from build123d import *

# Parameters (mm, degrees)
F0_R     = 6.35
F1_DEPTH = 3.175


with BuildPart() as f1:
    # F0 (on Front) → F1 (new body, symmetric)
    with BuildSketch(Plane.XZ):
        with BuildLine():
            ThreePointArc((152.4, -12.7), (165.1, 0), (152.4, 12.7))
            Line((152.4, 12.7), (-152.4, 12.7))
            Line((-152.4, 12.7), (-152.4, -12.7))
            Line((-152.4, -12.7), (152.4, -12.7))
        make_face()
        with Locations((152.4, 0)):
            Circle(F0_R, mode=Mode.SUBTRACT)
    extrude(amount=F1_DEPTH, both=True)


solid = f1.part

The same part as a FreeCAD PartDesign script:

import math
import FreeCAD as App
import Part
import Sketcher
from FreeCAD import Vector
Q = App.Units.Quantity

doc = App.newDocument("Part")
body = doc.addObject("PartDesign::Body", "Body")

# Sketch on XZ plane
sketch1 = doc.addObject("Sketcher::SketchObject", "Sketch")
body.addObject(sketch1)
sketch1.AttachmentSupport = (doc.XZ_Plane, [""])
sketch1.MapMode = "FlatFace"
sketch1.addGeometry(Part.ArcOfCircle(Part.Circle(Vector(152, 0, 0), Vector(0, 0, 1), 13), math.radians(-90), math.radians(90)), False)
sketch1.addGeometry(Part.LineSegment(Vector(152, 13, 0), Vector(-152, 13, 0)), False)
sketch1.addGeometry(Part.LineSegment(Vector(-152, 13, 0), Vector(-152, -13, 0)), False)
sketch1.addGeometry(Part.LineSegment(Vector(-152, -13, 0), Vector(152, -13, 0)), False)
sketch1.addGeometry(Part.Circle(Vector(152, 0, 0), Vector(0, 0, 1), 6), False)
sketch1.addConstraint(Sketcher.Constraint("Tangent", 0, 2, 1, 1))
sketch1.addConstraint(Sketcher.Constraint("Coincident", 1, 2, 2, 1))
sketch1.addConstraint(Sketcher.Constraint("Coincident", 2, 2, 3, 1))
sketch1.addConstraint(Sketcher.Constraint("Tangent", 3, 2, 0, 1))
sketch1.addConstraint(Sketcher.Constraint("Horizontal", 1))
sketch1.addConstraint(Sketcher.Constraint("Vertical", 2))
sketch1.addConstraint(Sketcher.Constraint("Horizontal", 3))
sketch1.addConstraint(Sketcher.Constraint("Coincident", 4, 3, 0, 3))
sketch1.addConstraint(Sketcher.Constraint("Symmetric", 0, 2, 2, 2, -1, 1))
sketch1.addConstraint(Sketcher.Constraint("Diameter", 4, Q("0.5 in")))
sketch1.addConstraint(Sketcher.Constraint("Radius", 0, Q("0.5 in")))
sketch1.addConstraint(Sketcher.Constraint("DistanceX", 1, 2, 1, 1, Q("12 in")))
pad1 = doc.addObject("PartDesign::Pad", "Pad")
body.addObject(pad1)
pad1.Profile = sketch1
pad1.Length = Q("0.25 in")
pad1.Midplane = True

doc.recompute()
